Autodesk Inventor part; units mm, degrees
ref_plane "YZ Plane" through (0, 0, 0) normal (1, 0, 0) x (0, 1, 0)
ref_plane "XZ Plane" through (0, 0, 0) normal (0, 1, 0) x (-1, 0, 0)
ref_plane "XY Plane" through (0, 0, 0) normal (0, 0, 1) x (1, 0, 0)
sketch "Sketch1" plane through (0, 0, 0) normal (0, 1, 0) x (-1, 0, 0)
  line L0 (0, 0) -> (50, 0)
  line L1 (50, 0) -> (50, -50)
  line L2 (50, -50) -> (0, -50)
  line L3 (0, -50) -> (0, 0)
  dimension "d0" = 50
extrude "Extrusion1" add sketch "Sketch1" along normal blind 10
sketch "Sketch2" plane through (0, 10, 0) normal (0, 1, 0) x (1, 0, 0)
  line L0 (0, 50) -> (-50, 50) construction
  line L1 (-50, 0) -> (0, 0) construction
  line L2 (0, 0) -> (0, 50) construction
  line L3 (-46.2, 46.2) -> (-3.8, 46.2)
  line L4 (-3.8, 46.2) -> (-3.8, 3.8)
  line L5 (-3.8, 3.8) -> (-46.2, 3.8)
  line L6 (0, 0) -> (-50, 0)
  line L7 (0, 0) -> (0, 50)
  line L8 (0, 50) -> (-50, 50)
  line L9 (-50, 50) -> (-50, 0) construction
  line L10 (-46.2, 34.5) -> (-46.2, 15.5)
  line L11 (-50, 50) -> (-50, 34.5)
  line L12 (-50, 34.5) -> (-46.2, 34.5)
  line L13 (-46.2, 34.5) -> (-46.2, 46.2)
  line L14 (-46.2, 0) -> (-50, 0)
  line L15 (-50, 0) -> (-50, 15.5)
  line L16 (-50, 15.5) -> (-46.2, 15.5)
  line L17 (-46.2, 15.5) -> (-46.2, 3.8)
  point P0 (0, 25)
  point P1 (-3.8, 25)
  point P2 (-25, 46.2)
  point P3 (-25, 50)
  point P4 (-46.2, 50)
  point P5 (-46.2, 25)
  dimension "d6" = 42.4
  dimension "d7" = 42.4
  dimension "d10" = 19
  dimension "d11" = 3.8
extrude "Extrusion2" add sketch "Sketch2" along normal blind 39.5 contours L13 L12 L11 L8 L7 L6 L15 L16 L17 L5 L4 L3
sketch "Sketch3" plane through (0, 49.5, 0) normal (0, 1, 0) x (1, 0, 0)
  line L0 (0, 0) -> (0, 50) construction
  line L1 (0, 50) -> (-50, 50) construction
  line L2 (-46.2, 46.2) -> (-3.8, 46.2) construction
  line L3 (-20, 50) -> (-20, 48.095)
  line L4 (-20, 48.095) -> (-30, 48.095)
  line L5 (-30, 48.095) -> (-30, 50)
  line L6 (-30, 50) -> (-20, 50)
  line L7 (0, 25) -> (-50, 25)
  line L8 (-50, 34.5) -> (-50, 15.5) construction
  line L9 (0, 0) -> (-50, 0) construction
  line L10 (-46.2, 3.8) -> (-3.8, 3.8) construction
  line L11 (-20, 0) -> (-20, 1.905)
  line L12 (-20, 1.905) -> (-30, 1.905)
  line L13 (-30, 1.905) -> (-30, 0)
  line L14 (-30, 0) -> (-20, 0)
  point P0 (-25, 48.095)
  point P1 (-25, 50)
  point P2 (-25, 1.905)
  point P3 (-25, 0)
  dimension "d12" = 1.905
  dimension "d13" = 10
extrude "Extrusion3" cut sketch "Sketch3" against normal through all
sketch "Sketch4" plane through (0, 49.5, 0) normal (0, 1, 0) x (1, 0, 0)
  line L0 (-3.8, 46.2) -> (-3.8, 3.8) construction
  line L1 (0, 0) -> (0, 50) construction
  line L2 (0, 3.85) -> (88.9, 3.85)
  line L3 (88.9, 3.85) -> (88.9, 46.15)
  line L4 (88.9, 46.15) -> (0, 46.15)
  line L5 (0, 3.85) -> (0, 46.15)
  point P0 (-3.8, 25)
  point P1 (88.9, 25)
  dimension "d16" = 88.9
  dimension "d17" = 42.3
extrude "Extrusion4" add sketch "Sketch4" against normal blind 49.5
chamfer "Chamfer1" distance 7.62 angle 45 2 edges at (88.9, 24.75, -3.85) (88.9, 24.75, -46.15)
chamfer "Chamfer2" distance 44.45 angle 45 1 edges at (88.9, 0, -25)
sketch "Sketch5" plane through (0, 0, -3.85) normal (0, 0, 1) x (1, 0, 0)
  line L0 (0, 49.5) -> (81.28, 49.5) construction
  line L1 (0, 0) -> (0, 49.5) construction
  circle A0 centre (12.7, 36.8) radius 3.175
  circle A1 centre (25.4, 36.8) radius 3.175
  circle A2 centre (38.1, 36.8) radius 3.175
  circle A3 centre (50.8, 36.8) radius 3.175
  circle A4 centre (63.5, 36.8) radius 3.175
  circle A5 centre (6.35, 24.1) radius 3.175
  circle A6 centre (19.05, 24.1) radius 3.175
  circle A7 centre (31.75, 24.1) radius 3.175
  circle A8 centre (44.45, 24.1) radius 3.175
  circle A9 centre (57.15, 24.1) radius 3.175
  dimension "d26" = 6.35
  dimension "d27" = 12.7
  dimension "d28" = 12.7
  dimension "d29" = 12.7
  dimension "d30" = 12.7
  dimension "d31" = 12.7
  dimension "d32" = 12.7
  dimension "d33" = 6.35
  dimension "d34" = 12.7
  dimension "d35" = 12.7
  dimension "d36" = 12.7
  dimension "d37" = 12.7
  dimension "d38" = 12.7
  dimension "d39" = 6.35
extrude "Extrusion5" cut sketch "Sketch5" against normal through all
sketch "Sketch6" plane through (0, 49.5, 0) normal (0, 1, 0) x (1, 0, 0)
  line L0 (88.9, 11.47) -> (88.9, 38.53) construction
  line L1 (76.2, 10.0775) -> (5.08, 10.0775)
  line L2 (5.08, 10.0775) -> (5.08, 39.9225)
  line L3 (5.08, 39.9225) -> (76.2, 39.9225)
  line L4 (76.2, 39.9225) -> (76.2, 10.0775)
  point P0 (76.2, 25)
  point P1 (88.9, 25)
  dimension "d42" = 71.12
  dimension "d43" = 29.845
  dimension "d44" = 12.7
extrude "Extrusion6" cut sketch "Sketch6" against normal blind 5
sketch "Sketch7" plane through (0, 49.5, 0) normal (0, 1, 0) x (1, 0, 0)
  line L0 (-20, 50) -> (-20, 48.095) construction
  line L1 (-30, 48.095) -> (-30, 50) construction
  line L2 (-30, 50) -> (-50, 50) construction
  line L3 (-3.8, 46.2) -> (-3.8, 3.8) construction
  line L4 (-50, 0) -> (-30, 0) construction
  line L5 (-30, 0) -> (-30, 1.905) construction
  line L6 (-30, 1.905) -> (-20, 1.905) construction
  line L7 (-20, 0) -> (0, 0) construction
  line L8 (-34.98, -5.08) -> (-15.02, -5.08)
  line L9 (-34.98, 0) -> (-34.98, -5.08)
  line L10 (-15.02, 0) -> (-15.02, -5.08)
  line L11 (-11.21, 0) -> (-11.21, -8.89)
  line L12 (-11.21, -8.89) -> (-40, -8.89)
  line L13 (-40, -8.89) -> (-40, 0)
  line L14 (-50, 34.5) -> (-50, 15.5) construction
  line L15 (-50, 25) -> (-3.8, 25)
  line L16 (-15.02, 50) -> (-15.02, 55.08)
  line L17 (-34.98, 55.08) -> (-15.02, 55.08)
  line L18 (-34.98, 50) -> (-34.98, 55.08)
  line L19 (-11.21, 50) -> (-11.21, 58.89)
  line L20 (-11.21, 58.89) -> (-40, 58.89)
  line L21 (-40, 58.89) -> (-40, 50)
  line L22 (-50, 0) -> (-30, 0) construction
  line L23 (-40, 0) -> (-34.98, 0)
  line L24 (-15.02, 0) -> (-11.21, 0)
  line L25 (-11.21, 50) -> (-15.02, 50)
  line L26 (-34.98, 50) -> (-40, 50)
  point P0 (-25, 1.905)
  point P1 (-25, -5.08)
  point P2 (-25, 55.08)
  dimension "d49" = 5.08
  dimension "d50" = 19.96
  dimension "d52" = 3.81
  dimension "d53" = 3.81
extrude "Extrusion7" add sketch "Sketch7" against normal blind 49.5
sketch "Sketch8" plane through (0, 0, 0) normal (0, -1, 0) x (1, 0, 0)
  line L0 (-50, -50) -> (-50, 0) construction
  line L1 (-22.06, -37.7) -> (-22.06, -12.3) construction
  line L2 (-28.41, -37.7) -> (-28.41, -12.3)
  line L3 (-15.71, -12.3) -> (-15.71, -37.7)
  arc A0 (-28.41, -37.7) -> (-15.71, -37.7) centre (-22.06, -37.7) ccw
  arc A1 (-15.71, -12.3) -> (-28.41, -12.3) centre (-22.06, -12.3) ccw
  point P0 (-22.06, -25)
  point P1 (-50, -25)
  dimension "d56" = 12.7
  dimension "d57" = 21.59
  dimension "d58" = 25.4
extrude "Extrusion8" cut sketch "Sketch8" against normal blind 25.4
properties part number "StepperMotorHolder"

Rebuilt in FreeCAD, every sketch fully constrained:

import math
import FreeCAD as App
import Part
import Sketcher
Q = App.Units.Quantity


def edges_at(feature, points):
    """Names of the edges that pass closest to the given points."""
    edges = feature.Shape.Edges
    near = lambda p: min(range(len(edges)), key=lambda i: edges[i].distToShape(Part.Vertex(*p))[0])
    return sorted({f"Edge{near(p) + 1}" for p in points})

doc = App.newDocument("Part")
body = doc.addObject("PartDesign::Body", "Body")

sketch1 = body.newObject("Sketcher::SketchObject", "Sketch")
sketch1.AttachmentSupport = (doc.getObject("XZ_Plane"), [""])
sketch1.MapMode = "FlatFace"
sketch1.addGeometry(Part.LineSegment(App.Vector(-50, 0, 0), App.Vector(0, 0, 0)), False)
sketch1.addGeometry(Part.LineSegment(App.Vector(0, 0, 0), App.Vector(0, -50, 0)), False)
sketch1.addGeometry(Part.LineSegment(App.Vector(0, -50, 0), App.Vector(-50, -50, 0)), False)
sketch1.addGeometry(Part.LineSegment(App.Vector(-50, -50, 0), App.Vector(-50, 0, 0)), False)
sketch1.addConstraint(Sketcher.Constraint("Coincident", 0, 2, 1, 1))
sketch1.addConstraint(Sketcher.Constraint("Coincident", 1, 2, 2, 1))
sketch1.addConstraint(Sketcher.Constraint("Coincident", 2, 2, 3, 1))
sketch1.addConstraint(Sketcher.Constraint("Coincident", 3, 2, 0, 1))
sketch1.addConstraint(Sketcher.Constraint("Horizontal", 0))
sketch1.addConstraint(Sketcher.Constraint("Vertical", 1))
sketch1.addConstraint(Sketcher.Constraint("Horizontal", 2))
sketch1.addConstraint(Sketcher.Constraint("Vertical", 3))
sketch1.addConstraint(Sketcher.Constraint("Coincident", 0, 2, -1, 1))
sketch1.addConstraint(Sketcher.Constraint("Equal", 2, 1))
sketch1.addConstraint(Sketcher.Constraint("DistanceX", 0, 1, 0, 2, Q("1.9685 in")))
pad1 = body.newObject("PartDesign::Pad", "Pad")
pad1.Profile = sketch1
pad1.Length = Q("0.3937008 in")
pad1.Reversed = True

sketch2 = body.newObject("Sketcher::SketchObject", "Sketch001")
sketch2.AttachmentSupport = (doc.getObject("XZ_Plane"), [""])
sketch2.MapMode = "FlatFace"
sketch2.AttachmentOffset = App.Placement(App.Vector(0, 0, -0.3937008 * 25.4), App.Rotation())
sketch2.addGeometry(Part.LineSegment(App.Vector(-46.2, -34.5, 0), App.Vector(-46.2, -46.2, 0)), False)
sketch2.addGeometry(Part.LineSegment(App.Vector(-46.2, -46.2, 0), App.Vector(-3.8, -46.2, 0)), False)
sketch2.addGeometry(Part.LineSegment(App.Vector(-3.8, -46.2, 0), App.Vector(-3.8, -3.8, 0)), False)
sketch2.addGeometry(Part.LineSegment(App.Vector(-3.8, -3.8, 0), App.Vector(-46.2, -3.8, 0)), False)
sketch2.addGeometry(Part.LineSegment(App.Vector(-46.2, -3.8, 0), App.Vector(-46.2, -15.5, 0)), False)
sketch2.addGeometry(Part.LineSegment(App.Vector(-46.2, -15.5, 0), App.Vector(-50, -15.5, 0)), False)
sketch2.addGeometry(Part.LineSegment(App.Vector(-50, -15.5, 0), App.Vector(-50, 0, 0)), False)
sketch2.addGeometry(Part.LineSegment(App.Vector(-50, 0, 0), App.Vector(0, 0, 0)), False)
sketch2.addGeometry(Part.LineSegment(App.Vector(0, 0, 0), App.Vector(0, -50, 0)), False)
sketch2.addGeometry(Part.LineSegment(App.Vector(0, -50, 0), App.Vector(-50, -50, 0)), False)
sketch2.addGeometry(Part.LineSegment(App.Vector(-50, -50, 0), App.Vector(-50, -34.5, 0)), False)
sketch2.addGeometry(Part.LineSegment(App.Vector(-50, -34.5, 0), App.Vector(-46.2, -34.5, 0)), False)
sketch2.addConstraint(Sketcher.Constraint("Coincident", 0, 2, 1, 1))
sketch2.addConstraint(Sketcher.Constraint("Coincident", 1, 2, 2, 1))
sketch2.addConstraint(Sketcher.Constraint("Coincident", 2, 2, 3, 1))
sketch2.addConstraint(Sketcher.Constraint("Coincident", 3, 2, 4, 1))
sketch2.addConstraint(Sketcher.Constraint("Coincident", 4, 2, 5, 1))
sketch2.addConstraint(Sketcher.Constraint("Coincident", 5, 2, 6, 1))
sketch2.addConstraint(Sketcher.Constraint("Coincident", 6, 2, 7, 1))
sketch2.addConstraint(Sketcher.Constraint("Coincident", 7, 2, 8, 1))
sketch2.addConstraint(Sketcher.Constraint("Coincident", 8, 2, 9, 1))
sketch2.addConstraint(Sketcher.Constraint("Coincident", 9, 2, 10, 1))
sketch2.addConstraint(Sketcher.Constraint("Coincident", 10, 2, 11, 1))
sketch2.addConstraint(Sketcher.Constraint("Coincident", 11, 2, 0, 1))
sketch2.addConstraint(Sketcher.Constraint("Vertical", 0))
sketch2.addConstraint(Sketcher.Constraint("Horizontal", 1))
sketch2.addConstraint(Sketcher.Constraint("Vertical", 2))
sketch2.addConstraint(Sketcher.Constraint("Horizontal", 3))
sketch2.addConstraint(Sketcher.Constraint("Vertical", 4))
sketch2.addConstraint(Sketcher.Constraint("Horizontal", 5))
sketch2.addConstraint(Sketcher.Constraint("Vertical", 6))
sketch2.addConstraint(Sketcher.Constraint("Horizontal", 7))
sketch2.addConstraint(Sketcher.Constraint("Vertical", 8))
sketch2.addConstraint(Sketcher.Constraint("Horizontal", 9))
sketch2.addConstraint(Sketcher.Constraint("Vertical", 10))
sketch2.addConstraint(Sketcher.Constraint("Horizontal", 11))
sketch2.addConstraint(Sketcher.Constraint("Coincident", 7, 2, -1, 1))
sketch2.addConstraint(Sketcher.Constraint("Vertical", 0, 2, 3, 2))
sketch2.addConstraint(Sketcher.Constraint("Vertical", 6, 2, 9, 2))
sketch2.addConstraint(Sketcher.Constraint("Equal", 3, 2))
sketch2.addConstraint(Sketcher.Constraint("Equal", 0, 4))
sketch2.addConstraint(Sketcher.Constraint("Equal", 9, 8))
sketch2.addConstraint(Sketcher.Constraint("Equal", 6, 10))
sketch2.addConstraint(Sketcher.Constraint("DistanceX", 1, 1, 1, 2, Q("1.6693 in")))
sketch2.addConstraint(Sketcher.Constraint("DistanceX", 5, 2, 5, 1, Q("0.1496 in")))
sketch2.addConstraint(Sketcher.Constraint("DistanceX", 1, 2, -1, 1, Q("0.1496 in")))
sketch2.addConstraint(Sketcher.Constraint("DistanceY", 10, 2, 5, 2, Q("19 mm")))
pad2 = body.newObject("PartDesign::Pad", "Pad001")
pad2.Profile = sketch2
pad2.Length = 39.5
pad2.Reversed = True

sketch3 = body.newObject("Sketcher::SketchObject", "Sketch002")
sketch3.AttachmentSupport = (doc.getObject("XZ_Plane"), [""])
sketch3.MapMode = "FlatFace"
sketch3.AttachmentOffset = App.Placement(App.Vector(0, 0, -49.5), App.Rotation())
sketch3.addGeometry(Part.LineSegment(App.Vector(-20, -48.1, 0), App.Vector(-20, -50, 0)), False)
sketch3.addGeometry(Part.LineSegment(App.Vector(-20, -50, 0), App.Vector(-30, -50, 0)), False)
sketch3.addGeometry(Part.LineSegment(App.Vector(-30, -50, 0), App.Vector(-30, -48.1, 0)), False)
sketch3.addGeometry(Part.LineSegment(App.Vector(-30, -48.1, 0), App.Vector(-20, -48.1, 0)), False)
sketch3.addGeometry(Part.LineSegment(App.Vector(-30, 0, 0), App.Vector(-20, 0, 0)), False)
sketch3.addGeometry(Part.LineSegment(App.Vector(-20, 0, 0), App.Vector(-20, -1.9, 0)), False)
sketch3.addGeometry(Part.LineSegment(App.Vector(-20, -1.9, 0), App.Vector(-30, -1.9, 0)), False)
sketch3.addGeometry(Part.LineSegment(App.Vector(-30, -1.9, 0), App.Vector(-30, 0, 0)), False)
sketch3.addConstraint(Sketcher.Constraint("Coincident", 0, 2, 1, 1))
sketch3.addConstraint(Sketcher.Constraint("Coincident", 1, 2, 2, 1))
sketch3.addConstraint(Sketcher.Constraint("Coincident", 2, 2, 3, 1))
sketch3.addConstraint(Sketcher.Constraint("Coincident", 3, 2, 0, 1))
sketch3.addConstraint(Sketcher.Constraint("Coincident", 4, 2, 5, 1))
sketch3.addConstraint(Sketcher.Constraint("Coincident", 5, 2, 6, 1))
sketch3.addConstraint(Sketcher.Constraint("Coincident", 6, 2, 7, 1))
sketch3.addConstraint(Sketcher.Constraint("Coincident", 7, 2, 4, 1))
sketch3.addConstraint(Sketcher.Constraint("Vertical", 0))
sketch3.addConstraint(Sketcher.Constraint("Horizontal", 1))
sketch3.addConstraint(Sketcher.Constraint("Vertical", 2))
sketch3.addConstraint(Sketcher.Constraint("Horizontal", 3))
sketch3.addConstraint(Sketcher.Constraint("Horizontal", 4))
sketch3.addConstraint(Sketcher.Constraint("Vertical", 5))
sketch3.addConstraint(Sketcher.Constraint("Horizontal", 6))
sketch3.addConstraint(Sketcher.Constraint("Vertical", 7))
sketch3.addConstraint(Sketcher.Constraint("PointOnObject", 4, 2, -1))
sketch3.addConstraint(Sketcher.Constraint("Vertical", 3, 2, 4, 2))
sketch3.addConstraint(Sketcher.Constraint("Vertical", 2, 2, 6, 2))
sketch3.addConstraint(Sketcher.Constraint("Equal", 2, 5))
sketch3.addConstraint(Sketcher.Constraint("DistanceY", 0, 2, 0, 1, Q("0.075 in")))
sketch3.addConstraint(Sketcher.Constraint("DistanceX", 1, 2, 1, 1, Q("0.3937 in")))
sketch3.addConstraint(Sketcher.Constraint("DistanceX", 0, 2, -1, 1, Q("0.7874 in")))
sketch3.addConstraint(Sketcher.Constraint("DistanceY", 0, 2, -1, 1, Q("1.9685 in")))
pocket1 = body.newObject("PartDesign::Pocket", "Pocket")
pocket1.Profile = sketch3
pocket1.Type = "ThroughAll"
pocket1.Reversed = True

sketch4 = body.newObject("Sketcher::SketchObject", "Sketch003")
sketch4.AttachmentSupport = (doc.getObject("XZ_Plane"), [""])
sketch4.MapMode = "FlatFace"
sketch4.AttachmentOffset = App.Placement(App.Vector(0, 0, -49.5), App.Rotation())
sketch4.addGeometry(Part.LineSegment(App.Vector(0, -46, 0), App.Vector(0, -4, 0)), False)
sketch4.addGeometry(Part.LineSegment(App.Vector(0, -4, 0), App.Vector(89, -4, 0)), False)
sketch4.addGeometry(Part.LineSegment(App.Vector(89, -4, 0), App.Vector(89, -46, 0)), False)
sketch4.addGeometry(Part.LineSegment(App.Vector(89, -46, 0), App.Vector(0, -46, 0)), False)
sketch4.addConstraint(Sketcher.Constraint("Coincident", 0, 2, 1, 1))
sketch4.addConstraint(Sketcher.Constraint("Coincident", 1, 2, 2, 1))
sketch4.addConstraint(Sketcher.Constraint("Coincident", 2, 2, 3, 1))
sketch4.addConstraint(Sketcher.Constraint("Coincident", 3, 2, 0, 1))
sketch4.addConstraint(Sketcher.Constraint("Vertical", 0))
sketch4.addConstraint(Sketcher.Constraint("Horizontal", 1))
sketch4.addConstraint(Sketcher.Constraint("Vertical", 2))
sketch4.addConstraint(Sketcher.Constraint("Horizontal", 3))
sketch4.addConstraint(Sketcher.Constraint("PointOnObject", 0, 2, -2))
sketch4.addConstraint(Sketcher.Constraint("DistanceX", 1, 1, 1, 2, Q("3.5 in")))
sketch4.addConstraint(Sketcher.Constraint("DistanceY", 0, 1, 0, 2, Q("42.3 mm")))
sketch4.addConstraint(Sketcher.Constraint("DistanceY", 0, 2, -1, 1, Q("3.85 mm")))
pad3 = body.newObject("PartDesign::Pad", "Pad002")
pad3.Profile = sketch4
pad3.Length = 49.5
doc.recompute()

chamfer = body.newObject("PartDesign::Chamfer", "Chamfer")
chamfer.Base = (pad3, edges_at(pad3, [(88.9, 24.75, -3.85), (88.9, 24.75, -46.15)]))
chamfer.Size = Q("0.3 in")
doc.recompute()

chamfer2 = body.newObject("PartDesign::Chamfer", "Chamfer001")
chamfer2.Base = (chamfer, edges_at(chamfer, [(88.9, 0, -25)]))
chamfer2.Size = Q("1.75 in")

sketch5 = body.newObject("Sketcher::SketchObject", "Sketch004")
sketch5.AttachmentSupport = (doc.getObject("XY_Plane"), [""])
sketch5.MapMode = "FlatFace"
sketch5.AttachmentOffset = App.Placement(App.Vector(0, 0, -3.85), App.Rotation())
sketch5.addGeometry(Part.Circle(App.Vector(12.7, 36.8, 0), App.Vector(0, 0, 1), 3.2), False)
sketch5.addGeometry(Part.Circle(App.Vector(25.4, 36.8, 0), App.Vector(0, 0, 1), 3.2), False)
sketch5.addGeometry(Part.Circle(App.Vector(38.1, 36.8, 0), App.Vector(0, 0, 1), 3.2), False)
sketch5.addGeometry(Part.Circle(App.Vector(50.8, 36.8, 0), App.Vector(0, 0, 1), 3.2), False)
sketch5.addGeometry(Part.Circle(App.Vector(63.5, 36.8, 0), App.Vector(0, 0, 1), 3.2), False)
sketch5.addGeometry(Part.Circle(App.Vector(6.3, 24.1, 0), App.Vector(0, 0, 1), 3.2), False)
sketch5.addGeometry(Part.Circle(App.Vector(19.1, 24.1, 0), App.Vector(0, 0, 1), 3.2), False)
sketch5.addGeometry(Part.Circle(App.Vector(31.8, 24.1, 0), App.Vector(0, 0, 1), 3.2), False)
sketch5.addGeometry(Part.Circle(App.Vector(44.5, 24.1, 0), App.Vector(0, 0, 1), 3.2), False)
sketch5.addGeometry(Part.Circle(App.Vector(57.1, 24.1, 0), App.Vector(0, 0, 1), 3.2), False)
sketch5.addConstraint(Sketcher.Constraint("Equal", 0, 1))
sketch5.addConstraint(Sketcher.Constraint("Equal", 1, 2))
sketch5.addConstraint(Sketcher.Constraint("Equal", 2, 3))
sketch5.addConstraint(Sketcher.Constraint("Equal", 3, 4))
sketch5.addConstraint(Sketcher.Constraint("Equal", 4, 5))
sketch5.addConstraint(Sketcher.Constraint("Equal", 5, 6))
sketch5.addConstraint(Sketcher.Constraint("Equal", 6, 7))
sketch5.addConstraint(Sketcher.Constraint("Equal", 7, 8))
sketch5.addConstraint(Sketcher.Constraint("Equal", 8, 9))
sketch5.addConstraint(Sketcher.Constraint("Horizontal", 0, 3, 1, 3))
sketch5.addConstraint(Sketcher.Constraint("Horizontal", 1, 3, 2, 3))
sketch5.addConstraint(Sketcher.Constraint("Horizontal", 2, 3, 3, 3))
sketch5.addConstraint(Sketcher.Constraint("Horizontal", 3, 3, 4, 3))
sketch5.addConstraint(Sketcher.Constraint("Horizontal", 5, 3, 6, 3))
sketch5.addConstraint(Sketcher.Constraint("Horizontal", 6, 3, 7, 3))
sketch5.addConstraint(Sketcher.Constraint("Horizontal", 7, 3, 8, 3))
sketch5.addConstraint(Sketcher.Constraint("Horizontal", 8, 3, 9, 3))
sketch5.addConstraint(Sketcher.Constraint("Diameter", 0, Q("0.25 in")))
sketch5.addConstraint(Sketcher.Constraint("DistanceX", -1, 1, 0, 3, Q("0.5 in")))
sketch5.addConstraint(Sketcher.Constraint("DistanceX", 0, 3, 1, 3, Q("0.5 in")))
sketch5.addConstraint(Sketcher.Constraint("DistanceX", 1, 3, 2, 3, Q("0.5 in")))
sketch5.addConstraint(Sketcher.Constraint("DistanceX", 2, 3, 3, 3, Q("0.5 in")))
sketch5.addConstraint(Sketcher.Constraint("DistanceX", 3, 3, 4, 3, Q("0.5 in")))
sketch5.addConstraint(Sketcher.Constraint("DistanceY", 5, 3, 0, 3, Q("0.5 in")))
sketch5.addConstraint(Sketcher.Constraint("DistanceX", 5, 3, 6, 3, Q("0.5 in")))
sketch5.addConstraint(Sketcher.Constraint("DistanceX", 6, 3, 7, 3, Q("0.5 in")))
sketch5.addConstraint(Sketcher.Constraint("DistanceX", 7, 3, 8, 3, Q("0.5 in")))
sketch5.addConstraint(Sketcher.Constraint("DistanceX", 8, 3, 9, 3, Q("0.5 in")))
sketch5.addConstraint(Sketcher.Constraint("DistanceX", -1, 1, 5, 3, Q("0.25 in")))
sketch5.addConstraint(Sketcher.Constraint("DistanceY", -1, 1, 0, 3, Q("36.8 mm")))
pocket2 = body.newObject("PartDesign::Pocket", "Pocket001")
pocket2.Profile = sketch5
pocket2.Type = "ThroughAll"

sketch6 = body.newObject("Sketcher::SketchObject", "Sketch005")
sketch6.AttachmentSupport = (doc.getObject("XZ_Plane"), [""])
sketch6.MapMode = "FlatFace"
sketch6.AttachmentOffset = App.Placement(App.Vector(0, 0, -49.5), App.Rotation())
sketch6.addGeometry(Part.LineSegment(App.Vector(5, -10, 0), App.Vector(76, -10, 0)), False)
sketch6.addGeometry(Part.LineSegment(App.Vector(76, -10, 0), App.Vector(76, -40, 0)), False)
sketch6.addGeometry(Part.LineSegment(App.Vector(76, -40, 0), App.Vector(5, -40, 0)), False)
sketch6.addGeometry(Part.LineSegment(App.Vector(5, -40, 0), App.Vector(5, -10, 0)), False)
sketch6.addConstraint(Sketcher.Constraint("Coincident", 0, 2, 1, 1))
sketch6.addConstraint(Sketcher.Constraint("Coincident", 1, 2, 2, 1))
sketch6.addConstraint(Sketcher.Constraint("Coincident", 2, 2, 3, 1))
sketch6.addConstraint(Sketcher.Constraint("Coincident", 3, 2, 0, 1))
sketch6.addConstraint(Sketcher.Constraint("Horizontal", 0))
sketch6.addConstraint(Sketcher.Constraint("Vertical", 1))
sketch6.addConstraint(Sketcher.Constraint("Horizontal", 2))
sketch6.addConstraint(Sketcher.Constraint("Vertical", 3))
sketch6.addConstraint(Sketcher.Constraint("DistanceX", 0, 1, 0, 2, Q("2.8 in")))
sketch6.addConstraint(Sketcher.Constraint("DistanceY", 1, 2, 1, 1, Q("1.175 in")))
sketch6.addConstraint(Sketcher.Constraint("DistanceX", -1, 1, 0, 2, Q("3 in")))
sketch6.addConstraint(Sketcher.Constraint("DistanceY", 0, 2, -1, 1, Q("10.0775 mm")))
pocket3 = body.newObject("PartDesign::Pocket", "Pocket002")
pocket3.Profile = sketch6
pocket3.Length = 5
pocket3.Reversed = True

sketch7 = body.newObject("Sketcher::SketchObject", "Sketch006")
sketch7.AttachmentSupport = (doc.getObject("XZ_Plane"), [""])
sketch7.MapMode = "FlatFace"
sketch7.AttachmentOffset = App.Placement(App.Vector(0, 0, -49.5), App.Rotation())
sketch7.addGeometry(Part.LineSegment(App.Vector(-15, 5.1, 0), App.Vector(-35, 5.1, 0)), False)
sketch7.addGeometry(Part.LineSegment(App.Vector(-35, 5.1, 0), App.Vector(-35, 0, 0)), False)
sketch7.addGeometry(Part.LineSegment(App.Vector(-35, 0, 0), App.Vector(-40, 0, 0)), False)
sketch7.addGeometry(Part.LineSegment(App.Vector(-40, 0, 0), App.Vector(-40, 8.9, 0)), False)
sketch7.addGeometry(Part.LineSegment(App.Vector(-40, 8.9, 0), App.Vector(-11.2, 8.9, 0)), False)
sketch7.addGeometry(Part.LineSegment(App.Vector(-11.2, 8.9, 0), App.Vector(-11.2, 0, 0)), False)
sketch7.addGeometry(Part.LineSegment(App.Vector(-11.2, 0, 0), App.Vector(-15, 0, 0)), False)
sketch7.addGeometry(Part.LineSegment(App.Vector(-15, 0, 0), App.Vector(-15, 5.1, 0)), False)
sketch7.addGeometry(Part.LineSegment(App.Vector(-15, -55.1, 0), App.Vector(-15, -50, 0)), False)
sketch7.addGeometry(Part.LineSegment(App.Vector(-15, -50, 0), App.Vector(-11.2, -50, 0)), False)
sketch7.addGeometry(Part.LineSegment(App.Vector(-11.2, -50, 0), App.Vector(-11.2, -58.9, 0)), False)
sketch7.addGeometry(Part.LineSegment(App.Vector(-11.2, -58.9, 0), App.Vector(-40, -58.9, 0)), False)
sketch7.addGeometry(Part.LineSegment(App.Vector(-40, -58.9, 0), App.Vector(-40, -50, 0)), False)
sketch7.addGeometry(Part.LineSegment(App.Vector(-40, -50, 0), App.Vector(-35, -50, 0)), False)
sketch7.addGeometry(Part.LineSegment(App.Vector(-35, -50, 0), App.Vector(-35, -55.1, 0)), False)
sketch7.addGeometry(Part.LineSegment(App.Vector(-35, -55.1, 0), App.Vector(-15, -55.1, 0)), False)
sketch7.addConstraint(Sketcher.Constraint("Coincident", 0, 2, 1, 1))
sketch7.addConstraint(Sketcher.Constraint("Coincident", 1, 2, 2, 1))
sketch7.addConstraint(Sketcher.Constraint("Coincident", 2, 2, 3, 1))
sketch7.addConstraint(Sketcher.Constraint("Coincident", 3, 2, 4, 1))
sketch7.addConstraint(Sketcher.Constraint("Coincident", 4, 2, 5, 1))
sketch7.addConstraint(Sketcher.Constraint("Coincident", 5, 2, 6, 1))
sketch7.addConstraint(Sketcher.Constraint("Coincident", 6, 2, 7, 1))
sketch7.addConstraint(Sketcher.Constraint("Coincident", 7, 2, 0, 1))
sketch7.addConstraint(Sketcher.Constraint("Coincident", 8, 2, 9, 1))
sketch7.addConstraint(Sketcher.Constraint("Coincident", 9, 2, 10, 1))
sketch7.addConstraint(Sketcher.Constraint("Coincident", 10, 2, 11, 1))
sketch7.addConstraint(Sketcher.Constraint("Coincident", 11, 2, 12, 1))
sketch7.addConstraint(Sketcher.Constraint("Coincident", 12, 2, 13, 1))
sketch7.addConstraint(Sketcher.Constraint("Coincident", 13, 2, 14, 1))
sketch7.addConstraint(Sketcher.Constraint("Coincident", 14, 2, 15, 1))
sketch7.addConstraint(Sketcher.Constraint("Coincident", 15, 2, 8, 1))
sketch7.addConstraint(Sketcher.Constraint("Horizontal", 0))
sketch7.addConstraint(Sketcher.Constraint("Vertical", 1))
sketch7.addConstraint(Sketcher.Constraint("Horizontal", 2))
sketch7.addConstraint(Sketcher.Constraint("Vertical", 3))
sketch7.addConstraint(Sketcher.Constraint("Horizontal", 4))
sketch7.addConstraint(Sketcher.Constraint("Vertical", 5))
sketch7.addConstraint(Sketcher.Constraint("Horizontal", 6))
sketch7.addConstraint(Sketcher.Constraint("Vertical", 7))
sketch7.addConstraint(Sketcher.Constraint("Vertical", 8))
sketch7.addConstraint(Sketcher.Constraint("Horizontal", 9))
sketch7.addConstraint(Sketcher.Constraint("Vertical", 10))
sketch7.addConstraint(Sketcher.Constraint("Horizontal", 11))
sketch7.addConstraint(Sketcher.Constraint("Vertical", 12))
sketch7.addConstraint(Sketcher.Constraint("Horizontal", 13))
sketch7.addConstraint(Sketcher.Constraint("Vertical", 14))
sketch7.addConstraint(Sketcher.Constraint("Horizontal", 15))
sketch7.addConstraint(Sketcher.Constraint("PointOnObject", 1, 2, -1))
sketch7.addConstraint(Sketcher.Constraint("PointOnObject", 5, 2, -1))
sketch7.addConstraint(Sketcher.Constraint("Horizontal", 9, 2, 12, 2))
sketch7.addConstraint(Sketcher.Constraint("Vertical", 7, 2, 8, 2))
sketch7.addConstraint(Sketcher.Constraint("Vertical", 5, 2, 9, 2))
sketch7.addConstraint(Sketcher.Constraint("Vertical", 3, 2, 11, 2))
sketch7.addConstraint(Sketcher.Constraint("Vertical", 1, 2, 13, 2))
sketch7.addConstraint(Sketcher.Constraint("Equal", 7, 8))
sketch7.addConstraint(Sketcher.Constraint("Equal", 5, 10))
sketch7.addConstraint(Sketcher.Constraint("DistanceY", 1, 2, 1, 1, Q("0.2 in")))
sketch7.addConstraint(Sketcher.Constraint("DistanceX", 6, 2, 6, 1, Q("0.15 in")))
sketch7.addConstraint(Sketcher.Constraint("DistanceY", 0, 2, 3, 2, Q("0.15 in")))
sketch7.addConstraint(Sketcher.Constraint("DistanceX", 0, 2, 0, 1, Q("19.96 mm")))
sketch7.addConstraint(Sketcher.Constraint("DistanceX", 2, 2, 2, 1, Q("5.02 mm")))
sketch7.addConstraint(Sketcher.Constraint("DistanceX", 2, 2, -1, 1, Q("1.5748 in")))
sketch7.addConstraint(Sketcher.Constraint("DistanceY", 8, 2, -1, 1, Q("1.9685 in")))
pad4 = body.newObject("PartDesign::Pad", "Pad003")
pad4.Profile = sketch7
pad4.Length = 49.5

sketch8 = body.newObject("Sketcher::SketchObject", "Sketch007")
sketch8.AttachmentSupport = (doc.getObject("XZ_Plane"), [""])
sketch8.MapMode = "FlatFace"
sketch8.addGeometry(Part.LineSegment(App.Vector(-28, -12, 0), App.Vector(-28, -38, 0)), False)
sketch8.addGeometry(Part.ArcOfCircle(Part.Circle(App.Vector(-22, -38, 0), App.Vector(0, 0, 1), 6), math.radians(180), math.radians(360)), False)
sketch8.addGeometry(Part.LineSegment(App.Vector(-16, -38, 0), App.Vector(-16, -12, 0)), False)
sketch8.addGeometry(Part.ArcOfCircle(Part.Circle(App.Vector(-22, -12, 0), App.Vector(0, 0, 1), 6), math.radians(0), math.radians(180)), False)
sketch8.addConstraint(Sketcher.Constraint("Tangent", 0, 2, 1, 1))
sketch8.addConstraint(Sketcher.Constraint("Tangent", 1, 2, 2, 1))
sketch8.addConstraint(Sketcher.Constraint("Tangent", 2, 2, 3, 1))
sketch8.addConstraint(Sketcher.Constraint("Tangent", 3, 2, 0, 1))
sketch8.addConstraint(Sketcher.Constraint("Vertical", 0))
sketch8.addConstraint(Sketcher.Constraint("Vertical", 2))
sketch8.addConstraint(Sketcher.Constraint("DistanceY", 0, 2, 0, 1, Q("1 in")))
sketch8.addConstraint(Sketcher.Constraint("Radius", 1, Q("0.25 in")))
sketch8.addConstraint(Sketcher.Constraint("DistanceX", 1, 3, -1, 1, Q("0.8685 in")))
sketch8.addConstraint(Sketcher.Constraint("DistanceY", 1, 3, -1, 1, Q("37.7 mm")))
pocket4 = body.newObject("PartDesign::Pocket", "Pocket003")
pocket4.Profile = sketch8
pocket4.Length = Q("1 in")

doc.recompute()
